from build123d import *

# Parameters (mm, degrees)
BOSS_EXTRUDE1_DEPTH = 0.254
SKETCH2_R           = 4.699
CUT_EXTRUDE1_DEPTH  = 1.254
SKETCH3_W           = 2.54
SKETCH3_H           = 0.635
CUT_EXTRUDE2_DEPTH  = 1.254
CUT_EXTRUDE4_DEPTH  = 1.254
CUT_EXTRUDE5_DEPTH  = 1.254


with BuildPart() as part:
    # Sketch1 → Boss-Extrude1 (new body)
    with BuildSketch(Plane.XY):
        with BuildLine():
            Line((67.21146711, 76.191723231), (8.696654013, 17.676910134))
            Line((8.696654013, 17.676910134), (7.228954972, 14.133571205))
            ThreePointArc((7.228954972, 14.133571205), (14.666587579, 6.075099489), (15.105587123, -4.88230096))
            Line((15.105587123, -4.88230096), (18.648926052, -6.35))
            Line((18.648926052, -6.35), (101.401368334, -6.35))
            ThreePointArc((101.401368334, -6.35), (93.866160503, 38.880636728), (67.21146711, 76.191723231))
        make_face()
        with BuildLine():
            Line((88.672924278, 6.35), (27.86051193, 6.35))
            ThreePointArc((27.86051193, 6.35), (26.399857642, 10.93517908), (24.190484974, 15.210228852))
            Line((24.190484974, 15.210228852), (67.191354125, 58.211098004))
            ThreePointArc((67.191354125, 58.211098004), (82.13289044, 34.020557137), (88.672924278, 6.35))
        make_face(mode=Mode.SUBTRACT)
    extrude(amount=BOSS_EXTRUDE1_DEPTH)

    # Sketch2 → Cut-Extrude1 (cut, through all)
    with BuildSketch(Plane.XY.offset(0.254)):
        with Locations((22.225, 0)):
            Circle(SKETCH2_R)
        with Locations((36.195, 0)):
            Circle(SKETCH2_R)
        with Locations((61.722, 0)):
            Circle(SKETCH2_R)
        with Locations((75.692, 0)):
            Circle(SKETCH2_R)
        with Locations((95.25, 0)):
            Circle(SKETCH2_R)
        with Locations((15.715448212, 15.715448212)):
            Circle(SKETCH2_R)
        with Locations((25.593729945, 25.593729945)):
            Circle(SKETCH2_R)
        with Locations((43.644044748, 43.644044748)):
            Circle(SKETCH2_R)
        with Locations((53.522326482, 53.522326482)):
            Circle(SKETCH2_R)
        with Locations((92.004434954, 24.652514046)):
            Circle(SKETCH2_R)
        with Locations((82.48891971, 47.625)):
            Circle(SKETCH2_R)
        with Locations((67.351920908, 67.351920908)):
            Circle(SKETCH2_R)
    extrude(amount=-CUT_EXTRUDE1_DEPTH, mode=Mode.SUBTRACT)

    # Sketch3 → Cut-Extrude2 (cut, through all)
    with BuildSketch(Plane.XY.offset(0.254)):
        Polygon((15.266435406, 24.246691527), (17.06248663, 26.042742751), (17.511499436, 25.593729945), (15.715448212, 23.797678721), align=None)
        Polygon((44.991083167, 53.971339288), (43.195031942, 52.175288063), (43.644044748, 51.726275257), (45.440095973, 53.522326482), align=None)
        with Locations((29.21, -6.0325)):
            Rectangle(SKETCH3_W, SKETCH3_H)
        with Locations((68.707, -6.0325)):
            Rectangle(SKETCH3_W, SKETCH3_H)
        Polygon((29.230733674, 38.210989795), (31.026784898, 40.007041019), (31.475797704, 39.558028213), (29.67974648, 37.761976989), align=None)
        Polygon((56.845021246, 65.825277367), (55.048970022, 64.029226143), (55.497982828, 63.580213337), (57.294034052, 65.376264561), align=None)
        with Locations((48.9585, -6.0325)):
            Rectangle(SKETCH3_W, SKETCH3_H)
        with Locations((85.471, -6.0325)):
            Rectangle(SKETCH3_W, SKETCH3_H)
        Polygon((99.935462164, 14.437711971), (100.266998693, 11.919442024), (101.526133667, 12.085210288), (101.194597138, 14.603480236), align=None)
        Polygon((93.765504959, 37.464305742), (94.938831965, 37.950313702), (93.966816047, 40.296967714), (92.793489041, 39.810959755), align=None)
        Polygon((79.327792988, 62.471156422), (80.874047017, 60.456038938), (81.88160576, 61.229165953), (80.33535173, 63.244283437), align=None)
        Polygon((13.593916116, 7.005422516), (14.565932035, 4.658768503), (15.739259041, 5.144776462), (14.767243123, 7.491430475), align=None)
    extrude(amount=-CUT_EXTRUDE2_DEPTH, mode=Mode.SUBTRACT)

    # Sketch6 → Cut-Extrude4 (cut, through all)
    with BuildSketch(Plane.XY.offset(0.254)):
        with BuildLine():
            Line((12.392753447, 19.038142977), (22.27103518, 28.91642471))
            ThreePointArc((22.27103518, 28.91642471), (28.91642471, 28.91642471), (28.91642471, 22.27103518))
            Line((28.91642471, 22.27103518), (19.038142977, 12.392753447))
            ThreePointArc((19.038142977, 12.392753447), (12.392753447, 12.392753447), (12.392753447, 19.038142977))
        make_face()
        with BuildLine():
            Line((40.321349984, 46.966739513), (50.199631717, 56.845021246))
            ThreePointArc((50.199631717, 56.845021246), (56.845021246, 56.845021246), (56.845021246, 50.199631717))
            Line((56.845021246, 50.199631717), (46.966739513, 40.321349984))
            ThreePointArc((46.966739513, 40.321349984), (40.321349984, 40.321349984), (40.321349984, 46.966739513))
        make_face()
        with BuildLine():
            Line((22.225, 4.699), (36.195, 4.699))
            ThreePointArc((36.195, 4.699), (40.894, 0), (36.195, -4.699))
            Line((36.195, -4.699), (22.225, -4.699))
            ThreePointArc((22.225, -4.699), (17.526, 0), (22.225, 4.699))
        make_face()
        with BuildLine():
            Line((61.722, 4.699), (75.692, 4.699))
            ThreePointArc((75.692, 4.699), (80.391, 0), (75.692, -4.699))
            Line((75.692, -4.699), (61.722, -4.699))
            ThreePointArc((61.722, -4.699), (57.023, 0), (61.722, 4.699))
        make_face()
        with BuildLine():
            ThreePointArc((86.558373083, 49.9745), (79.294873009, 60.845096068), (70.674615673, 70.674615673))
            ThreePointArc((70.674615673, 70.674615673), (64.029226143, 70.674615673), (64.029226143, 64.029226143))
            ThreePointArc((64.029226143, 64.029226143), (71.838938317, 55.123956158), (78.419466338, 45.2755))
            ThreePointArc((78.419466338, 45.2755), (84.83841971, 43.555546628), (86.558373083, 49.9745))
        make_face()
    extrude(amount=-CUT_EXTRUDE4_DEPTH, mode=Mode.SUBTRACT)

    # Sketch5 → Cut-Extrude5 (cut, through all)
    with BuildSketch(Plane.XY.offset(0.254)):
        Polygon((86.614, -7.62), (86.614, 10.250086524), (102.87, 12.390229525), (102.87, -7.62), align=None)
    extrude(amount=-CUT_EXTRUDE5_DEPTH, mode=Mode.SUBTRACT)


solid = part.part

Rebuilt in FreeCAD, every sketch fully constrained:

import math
import FreeCAD as App
import Part
import Sketcher

V = App.Vector
Q = App.Units.Quantity

doc = App.newDocument("Part")
body = doc.addObject("PartDesign::Body", "Body")

# Sketch on XY plane
sketch1 = body.newObject("Sketcher::SketchObject", "Sketch")
sketch1.AttachmentSupport = (doc.getObject("XY_Plane"), [""])
sketch1.MapMode = "FlatFace"
sketch1.addGeometry(Part.LineSegment(V(67.211467, 76.191723, 0), V(8.696654, 17.67691, 0)), False)
sketch1.addGeometry(Part.LineSegment(V(8.696654, 17.67691, 0), V(7.228955, 14.133571, 0)), False)
sketch1.addGeometry(Part.ArcOfCircle(Part.Circle(V(0, 0, 0), V(0, 0, 1), 15.875), math.radians(-17.911434), math.radians(62.911434)), False)
sketch1.addGeometry(Part.LineSegment(V(15.105587, -4.882301, 0), V(18.648926, -6.35, 0)), False)
sketch1.addGeometry(Part.LineSegment(V(18.648926, -6.35, 0), V(101.401368, -6.35, 0)), False)
sketch1.addGeometry(Part.ArcOfCircle(Part.Circle(V(0, 0, 0), V(0, 0, 1), 101.6), math.radians(-3.583322), math.radians(48.583322)), False)
sketch1.addGeometry(Part.ArcOfCircle(Part.Circle(V(0, 0, 0), V(0, 0, 1), 88.9), math.radians(4.096044), math.radians(40.903956)), False)
sketch1.addGeometry(Part.LineSegment(V(88.672924, 6.35, 0), V(27.860512, 6.35, 0)), False)
sketch1.addGeometry(Part.ArcOfCircle(Part.Circle(V(0, 0, 0), V(0, 0, 1), 28.575), math.radians(12.839588), math.radians(32.160412)), False)
sketch1.addGeometry(Part.LineSegment(V(24.190485, 15.210229, 0), V(67.191354, 58.211098, 0)), False)
sketch1.addConstraint(Sketcher.Constraint("Coincident", 0, 2, 1, 1))
sketch1.addConstraint(Sketcher.Constraint("Coincident", 1, 2, 2, 2))
sketch1.addConstraint(Sketcher.Constraint("Coincident", 2, 1, 3, 1))
sketch1.addConstraint(Sketcher.Constraint("Coincident", 3, 2, 4, 1))
sketch1.addConstraint(Sketcher.Constraint("Coincident", 4, 2, 5, 1))
sketch1.addConstraint(Sketcher.Constraint("Coincident", 5, 2, 0, 1))
sketch1.addConstraint(Sketcher.Constraint("Coincident", 6, 1, 7, 1))
sketch1.addConstraint(Sketcher.Constraint("Coincident", 7, 2, 8, 1))
sketch1.addConstraint(Sketcher.Constraint("Coincident", 8, 2, 9, 1))
sketch1.addConstraint(Sketcher.Constraint("Coincident", 9, 2, 6, 2))
sketch1.addConstraint(Sketcher.Constraint("Horizontal", 4))
sketch1.addConstraint(Sketcher.Constraint("Horizontal", 7))
sketch1.addConstraint(Sketcher.Constraint("Coincident", 2, 3, -1, 1))
sketch1.addConstraint(Sketcher.Constraint("Coincident", 5, 3, -1, 1))
sketch1.addConstraint(Sketcher.Constraint("Coincident", 6, 3, -1, 1))
sketch1.addConstraint(Sketcher.Constraint("Coincident", 8, 3, -1, 1))
sketch1.addConstraint(Sketcher.Constraint("Perpendicular", 1, 3))
sketch1.addConstraint(Sketcher.Constraint("Parallel", 0, 9))
sketch1.addConstraint(Sketcher.Constraint("Equal", 1, 3))
sketch1.addConstraint(Sketcher.Constraint("Radius", 5, Q("4 in")))
sketch1.addConstraint(Sketcher.Constraint("Radius", 6, Q("3.5 in")))
sketch1.addConstraint(Sketcher.Constraint("Angle", 0, Q("-135 deg")))
sketch1.addConstraint(Sketcher.Constraint("Radius", 2, Q("0.625 in")))
sketch1.addConstraint(Sketcher.Constraint("Radius", 8, Q("1.125 in")))
sketch1.addConstraint(Sketcher.Constraint("Angle", 1, Q("-112.5 deg")))
sketch1.addConstraint(Sketcher.Constraint("DistanceY", 4, 2, 6, 1, Q("0.5 in")))
sketch1.addConstraint(Sketcher.Constraint("DistanceY", 3, 2, -1, 1, Q("0.25 in")))
sketch1.addConstraint(Sketcher.Constraint("DistanceY", 2, 1, -1, 1, Q("4.882301 mm")))
sketch1.addConstraint(Sketcher.Constraint("DistanceY", -1, 1, 9, 2, Q("58.211098 mm")))
sketch1.addConstraint(Sketcher.Constraint("DistanceX", 5, 2, 4, 2, Q("34.189901 mm")))
pad1 = body.newObject("PartDesign::Pad", "Pad")
pad1.Profile = sketch1
pad1.Length = Q("0.01 in")

# Sketch on XY plane
sketch2 = body.newObject("Sketcher::SketchObject", "Sketch001")
sketch2.AttachmentSupport = (doc.getObject("XY_Plane"), [""])
sketch2.MapMode = "FlatFace"
sketch2.AttachmentOffset = App.Placement(V(0, 0, 0.01 * 25.4), App.Rotation())
sketch2.addGeometry(Part.Circle(V(22.225, 0, 0), V(0, 0, 1), 4.699), False)
sketch2.addGeometry(Part.Circle(V(36.195, 0, 0), V(0, 0, 1), 4.699), False)
sketch2.addGeometry(Part.Circle(V(61.722, 0, 0), V(0, 0, 1), 4.699), False)
sketch2.addGeometry(Part.Circle(V(75.692, 0, 0), V(0, 0, 1), 4.699), False)
sketch2.addGeometry(Part.Circle(V(95.25, 0, 0), V(0, 0, 1), 4.699), False)
sketch2.addGeometry(Part.Circle(V(15.715448, 15.715448, 0), V(0, 0, 1), 4.699), False)
sketch2.addGeometry(Part.Circle(V(25.59373, 25.59373, 0), V(0, 0, 1), 4.699), False)
sketch2.addGeometry(Part.Circle(V(43.644045, 43.644045, 0), V(0, 0, 1), 4.699), False)
sketch2.addGeometry(Part.Circle(V(53.522326, 53.522326, 0), V(0, 0, 1), 4.699), False)
sketch2.addGeometry(Part.Circle(V(92.004435, 24.652514, 0), V(0, 0, 1), 4.699), False)
sketch2.addGeometry(Part.Circle(V(82.48892, 47.625, 0), V(0, 0, 1), 4.699), False)
sketch2.addGeometry(Part.Circle(V(67.351921, 67.351921, 0), V(0, 0, 1), 4.699), False)
sketch2.addConstraint(Sketcher.Constraint("Equal", 0, 1))
sketch2.addConstraint(Sketcher.Constraint("Equal", 1, 2))
sketch2.addConstraint(Sketcher.Constraint("Equal", 2, 3))
sketch2.addConstraint(Sketcher.Constraint("Equal", 3, 4))
sketch2.addConstraint(Sketcher.Constraint("Equal", 4, 5))
sketch2.addConstraint(Sketcher.Constraint("Equal", 5, 6))
sketch2.addConstraint(Sketcher.Constraint("Equal", 6, 7))
sketch2.addConstraint(Sketcher.Constraint("Equal", 7, 8))
sketch2.addConstraint(Sketcher.Constraint("Equal", 8, 9))
sketch2.addConstraint(Sketcher.Constraint("Equal", 9, 10))
sketch2.addConstraint(Sketcher.Constraint("Equal", 10, 11))
sketch2.addConstraint(Sketcher.Constraint("PointOnObject", 0, 3, -1))
sketch2.addConstraint(Sketcher.Constraint("PointOnObject", 1, 3, -1))
sketch2.addConstraint(Sketcher.Constraint("PointOnObject", 2, 3, -1))
sketch2.addConstraint(Sketcher.Constraint("PointOnObject", 3, 3, -1))
sketch2.addConstraint(Sketcher.Constraint("PointOnObject", 4, 3, -1))
sketch2.addConstraint(Sketcher.Constraint("Diameter", 0, Q("0.37 in")))
sketch2.addConstraint(Sketcher.Constraint("DistanceX", -1, 1, 2, 3, Q("2.43 in")))
sketch2.addConstraint(Sketcher.Constraint("DistanceX", -1, 1, 3, 3, Q("2.98 in")))
sketch2.addConstraint(Sketcher.Constraint("DistanceX", -1, 1, 4, 3, Q("3.75 in")))
sketch2.addConstraint(Sketcher.Constraint("DistanceX", 0, 3, 1, 3, Q("0.55 in")))
sketch2.addConstraint(Sketcher.Constraint("DistanceX", -1, 1, 0, 3, Q("0.875 in")))
sketch2.addConstraint(Sketcher.Constraint("DistanceY", -1, 1, 10, 3, Q("1.875 in")))
sketch2.addConstraint(Sketcher.Constraint("DistanceX", 11, 3, 10, 3, Q("15.136999 mm")))
sketch2.addConstraint(Sketcher.Constraint("DistanceX", -1, 1, 5, 3, Q("15.715448 mm")))
sketch2.addConstraint(Sketcher.Constraint("DistanceY", -1, 1, 5, 3, Q("15.715448 mm")))
sketch2.addConstraint(Sketcher.Constraint("DistanceX", -1, 1, 6, 3, Q("25.59373 mm")))
sketch2.addConstraint(Sketcher.Constraint("DistanceY", -1, 1, 6, 3, Q("25.59373 mm")))
sketch2.addConstraint(Sketcher.Constraint("DistanceX", -1, 1, 10, 3, Q("82.48892 mm")))
sketch2.addConstraint(Sketcher.Constraint("DistanceY", -1, 1, 11, 3, Q("67.351921 mm")))
sketch2.addConstraint(Sketcher.Constraint("DistanceX", 7, 3, 8, 3, Q("9.878282 mm")))
sketch2.addConstraint(Sketcher.Constraint("DistanceY", 7, 3, 8, 3, Q("9.878282 mm")))
sketch2.addConstraint(Sketcher.Constraint("DistanceX", 5, 3, 8, 3, Q("37.806878 mm")))
sketch2.addConstraint(Sketcher.Constraint("DistanceY", 5, 3, 8, 3, Q("37.806878 mm")))
sketch2.addConstraint(Sketcher.Constraint("DistanceX", 8, 3, 9, 3, Q("38.482108 mm")))
sketch2.addConstraint(Sketcher.Constraint("DistanceY", 9, 3, 7, 3, Q("18.991531 mm")))
pocket1 = body.newObject("PartDesign::Pocket", "Pocket")
pocket1.Profile = sketch2
pocket1.Type = "ThroughAll"

# Sketch on XY plane
sketch3 = body.newObject("Sketcher::SketchObject", "Sketch002")
sketch3.AttachmentSupport = (doc.getObject("XY_Plane"), [""])
sketch3.MapMode = "FlatFace"
sketch3.AttachmentOffset = App.Placement(V(0, 0, 0.01 * 25.4), App.Rotation())
sketch3.addGeometry(Part.LineSegment(V(17.062487, 26.042743, 0), V(15.266435, 24.246692, 0)), False)
sketch3.addGeometry(Part.LineSegment(V(15.266435, 24.246692, 0), V(15.715448, 23.797679, 0)), False)
sketch3.addGeometry(Part.LineSegment(V(15.715448, 23.797679, 0), V(17.511499, 25.59373, 0)), False)
sketch3.addGeometry(Part.LineSegment(V(17.511499, 25.59373, 0), V(17.062487, 26.042743, 0)), False)
sketch3.addGeometry(Part.LineSegment(V(44.991083, 53.971339, 0), V(43.195032, 52.175288, 0)), False)
sketch3.addGeometry(Part.LineSegment(V(43.195032, 52.175288, 0), V(43.644045, 51.726275, 0)), False)
sketch3.addGeometry(Part.LineSegment(V(43.644045, 51.726275, 0), V(45.440096, 53.522326, 0)), False)
sketch3.addGeometry(Part.LineSegment(V(45.440096, 53.522326, 0), V(44.991083, 53.971339, 0)), False)
sketch3.addGeometry(Part.LineSegment(V(27.94, -5.715, 0), V(27.94, -6.35, 0)), False)
sketch3.addGeometry(Part.LineSegment(V(27.94, -6.35, 0), V(30.48, -6.35, 0)), False)
sketch3.addGeometry(Part.LineSegment(V(30.48, -6.35, 0), V(30.48, -5.715, 0)), False)
sketch3.addGeometry(Part.LineSegment(V(30.48, -5.715, 0), V(27.94, -5.715, 0)), False)
sketch3.addGeometry(Part.LineSegment(V(67.437, -5.715, 0), V(67.437, -6.35, 0)), False)
sketch3.addGeometry(Part.LineSegment(V(67.437, -6.35, 0), V(69.977, -6.35, 0)), False)
sketch3.addGeometry(Part.LineSegment(V(69.977, -6.35, 0), V(69.977, -5.715, 0)), False)
sketch3.addGeometry(Part.LineSegment(V(69.977, -5.715, 0), V(67.437, -5.715, 0)), False)
sketch3.addGeometry(Part.LineSegment(V(31.026785, 40.007041, 0), V(29.230734, 38.21099, 0)), False)
sketch3.addGeometry(Part.LineSegment(V(29.230734, 38.21099, 0), V(29.679746, 37.761977, 0)), False)
sketch3.addGeometry(Part.LineSegment(V(29.679746, 37.761977, 0), V(31.475798, 39.558028, 0)), False)
sketch3.addGeometry(Part.LineSegment(V(31.475798, 39.558028, 0), V(31.026785, 40.007041, 0)), False)
sketch3.addGeometry(Part.LineSegment(V(56.845021, 65.825277, 0), V(55.04897, 64.029226, 0)), False)
sketch3.addGeometry(Part.LineSegment(V(55.04897, 64.029226, 0), V(55.497983, 63.580213, 0)), False)
sketch3.addGeometry(Part.LineSegment(V(55.497983, 63.580213, 0), V(57.294034, 65.376265, 0)), False)
sketch3.addGeometry(Part.LineSegment(V(57.294034, 65.376265, 0), V(56.845021, 65.825277, 0)), False)
sketch3.addGeometry(Part.LineSegment(V(47.6885, -5.715, 0), V(47.6885, -6.35, 0)), False)
sketch3.addGeometry(Part.LineSegment(V(47.6885, -6.35, 0), V(50.2285, -6.35, 0)), False)
sketch3.addGeometry(Part.LineSegment(V(50.2285, -6.35, 0), V(50.2285, -5.715, 0)), False)
sketch3.addGeometry(Part.LineSegment(V(50.2285, -5.715, 0), V(47.6885, -5.715, 0)), False)
sketch3.addGeometry(Part.LineSegment(V(84.201, -5.715, 0), V(84.201, -6.35, 0)), False)
sketch3.addGeometry(Part.LineSegment(V(84.201, -6.35, 0), V(86.741, -6.35, 0)), False)
sketch3.addGeometry(Part.LineSegment(V(86.741, -6.35, 0), V(86.741, -5.715, 0)), False)
sketch3.addGeometry(Part.LineSegment(V(86.741, -5.715, 0), V(84.201, -5.715, 0)), False)
sketch3.addGeometry(Part.LineSegment(V(99.935462, 14.437712, 0), V(100.266999, 11.919442, 0)), False)
sketch3.addGeometry(Part.LineSegment(V(100.266999, 11.919442, 0), V(101.526134, 12.08521, 0)), False)
sketch3.addGeometry(Part.LineSegment(V(101.526134, 12.08521, 0), V(101.194597, 14.60348, 0)), False)
sketch3.addGeometry(Part.LineSegment(V(101.194597, 14.60348, 0), V(99.935462, 14.437712, 0)), False)
sketch3.addGeometry(Part.LineSegment(V(93.765505, 37.464306, 0), V(94.938832, 37.950314, 0)), False)
sketch3.addGeometry(Part.LineSegment(V(94.938832, 37.950314, 0), V(93.966816, 40.296968, 0)), False)
sketch3.addGeometry(Part.LineSegment(V(93.966816, 40.296968, 0), V(92.793489, 39.81096, 0)), False)
sketch3.addGeometry(Part.LineSegment(V(92.793489, 39.81096, 0), V(93.765505, 37.464306, 0)), False)
sketch3.addGeometry(Part.LineSegment(V(79.327793, 62.471156, 0), V(80.874047, 60.456039, 0)), False)
sketch3.addGeometry(Part.LineSegment(V(80.874047, 60.456039, 0), V(81.881606, 61.229166, 0)), False)
sketch3.addGeometry(Part.LineSegment(V(81.881606, 61.229166, 0), V(80.335352, 63.244283, 0)), False)
sketch3.addGeometry(Part.LineSegment(V(80.335352, 63.244283, 0), V(79.327793, 62.471156, 0)), False)
sketch3.addGeometry(Part.LineSegment(V(13.593916, 7.005423, 0), V(14.565932, 4.658769, 0)), False)
sketch3.addGeometry(Part.LineSegment(V(14.565932, 4.658769, 0), V(15.739259, 5.144776, 0)), False)
sketch3.addGeometry(Part.LineSegment(V(15.739259, 5.144776, 0), V(14.767243, 7.49143, 0)), False)
sketch3.addGeometry(Part.LineSegment(V(14.767243, 7.49143, 0), V(13.593916, 7.005423, 0)), False)
sketch3.addConstraint(Sketcher.Constraint("Coincident", 0, 2, 1, 1))
sketch3.addConstraint(Sketcher.Constraint("Coincident", 1, 2, 2, 1))
sketch3.addConstraint(Sketcher.Constraint("Coincident", 2, 2, 3, 1))
sketch3.addConstraint(Sketcher.Constraint("Coincident", 3, 2, 0, 1))
sketch3.addConstraint(Sketcher.Constraint("Coincident", 4, 2, 5, 1))
sketch3.addConstraint(Sketcher.Constraint("Coincident", 5, 2, 6, 1))
sketch3.addConstraint(Sketcher.Constraint("Coincident", 6, 2, 7, 1))
sketch3.addConstraint(Sketcher.Constraint("Coincident", 7, 2, 4, 1))
sketch3.addConstraint(Sketcher.Constraint("Coincident", 8, 2, 9, 1))
sketch3.addConstraint(Sketcher.Constraint("Coincident", 9, 2, 10, 1))
sketch3.addConstraint(Sketcher.Constraint("Coincident", 10, 2, 11, 1))
sketch3.addConstraint(Sketcher.Constraint("Coincident", 11, 2, 8, 1))
sketch3.addConstraint(Sketcher.Constraint("Coincident", 12, 2, 13, 1))
sketch3.addConstraint(Sketcher.Constraint("Coincident", 13, 2, 14, 1))
sketch3.addConstraint(Sketcher.Constraint("Coincident", 14, 2, 15, 1))
sketch3.addConstraint(Sketcher.Constraint("Coincident", 15, 2, 12, 1))
sketch3.addConstraint(Sketcher.Constraint("Coincident", 16, 2, 17, 1))
sketch3.addConstraint(Sketcher.Constraint("Coincident", 17, 2, 18, 1))
sketch3.addConstraint(Sketcher.Constraint("Coincident", 18, 2, 19, 1))
sketch3.addConstraint(Sketcher.Constraint("Coincident", 19, 2, 16, 1))
sketch3.addConstraint(Sketcher.Constraint("Coincident", 20, 2, 21, 1))
sketch3.addConstraint(Sketcher.Constraint("Coincident", 21, 2, 22, 1))
sketch3.addConstraint(Sketcher.Constraint("Coincident", 22, 2, 23, 1))
sketch3.addConstraint(Sketcher.Constraint("Coincident", 23, 2, 20, 1))
sketch3.addConstraint(Sketcher.Constraint("Coincident", 24, 2, 25, 1))
sketch3.addConstraint(Sketcher.Constraint("Coincident", 25, 2, 26, 1))
sketch3.addConstraint(Sketcher.Constraint("Coincident", 26, 2, 27, 1))
sketch3.addConstraint(Sketcher.Constraint("Coincident", 27, 2, 24, 1))
sketch3.addConstraint(Sketcher.Constraint("Coincident", 28, 2, 29, 1))
sketch3.addConstraint(Sketcher.Constraint("Coincident", 29, 2, 30, 1))
sketch3.addConstraint(Sketcher.Constraint("Coincident", 30, 2, 31, 1))
sketch3.addConstraint(Sketcher.Constraint("Coincident", 31, 2, 28, 1))
sketch3.addConstraint(Sketcher.Constraint("Coincident", 32, 2, 33, 1))
sketch3.addConstraint(Sketcher.Constraint("Coincident", 33, 2, 34, 1))
sketch3.addConstraint(Sketcher.Constraint("Coincident", 34, 2, 35, 1))
sketch3.addConstraint(Sketcher.Constraint("Coincident", 35, 2, 32, 1))
sketch3.addConstraint(Sketcher.Constraint("Coincident", 36, 2, 37, 1))
sketch3.addConstraint(Sketcher.Constraint("Coincident", 37, 2, 38, 1))
sketch3.addConstraint(Sketcher.Constraint("Coincident", 38, 2, 39, 1))
sketch3.addConstraint(Sketcher.Constraint("Coincident", 39, 2, 36, 1))
sketch3.addConstraint(Sketcher.Constraint("Coincident", 40, 2, 41, 1))
sketch3.addConstraint(Sketcher.Constraint("Coincident", 41, 2, 42, 1))
sketch3.addConstraint(Sketcher.Constraint("Coincident", 42, 2, 43, 1))
sketch3.addConstraint(Sketcher.Constraint("Coincident", 43, 2, 40, 1))
sketch3.addConstraint(Sketcher.Constraint("Coincident", 44, 2, 45, 1))
sketch3.addConstraint(Sketcher.Constraint("Coincident", 45, 2, 46, 1))
sketch3.addConstraint(Sketcher.Constraint("Coincident", 46, 2, 47, 1))
sketch3.addConstraint(Sketcher.Constraint("Coincident", 47, 2, 44, 1))
sketch3.addConstraint(Sketcher.Constraint("Vertical", 8))
sketch3.addConstraint(Sketcher.Constraint("Horizontal", 9))
sketch3.addConstraint(Sketcher.Constraint("Vertical", 10))
sketch3.addConstraint(Sketcher.Constraint("Horizontal", 11))
sketch3.addConstraint(Sketcher.Constraint("Vertical", 12))
sketch3.addConstraint(Sketcher.Constraint("Horizontal", 13))
sketch3.addConstraint(Sketcher.Constraint("Vertical", 14))
sketch3.addConstraint(Sketcher.Constraint("Horizontal", 15))
sketch3.addConstraint(Sketcher.Constraint("Vertical", 24))
sketch3.addConstraint(Sketcher.Constraint("Horizontal", 25))
sketch3.addConstraint(Sketcher.Constraint("Vertical", 26))
sketch3.addConstraint(Sketcher.Constraint("Horizontal", 27))
sketch3.addConstraint(Sketcher.Constraint("Vertical", 28))
sketch3.addConstraint(Sketcher.Constraint("Horizontal", 29))
sketch3.addConstraint(Sketcher.Constraint("Vertical", 30))
sketch3.addConstraint(Sketcher.Constraint("Horizontal", 31))
sketch3.addConstraint(Sketcher.Constraint("Perpendicular", 0, 1))
sketch3.addConstraint(Sketcher.Constraint("Perpendicular", 1, 2))
sketch3.addConstraint(Sketcher.Constraint("Perpendicular", 2, 3))
sketch3.addConstraint(Sketcher.Constraint("Perpendicular", 3, 4))
sketch3.addConstraint(Sketcher.Constraint("Perpendicular", 4, 5))
sketch3.addConstraint(Sketcher.Constraint("Perpendicular", 5, 6))
sketch3.addConstraint(Sketcher.Constraint("Perpendicular", 6, 7))
sketch3.addConstraint(Sketcher.Constraint("Perpendicular", 7, 16))
sketch3.addConstraint(Sketcher.Constraint("Perpendicular", 16, 17))
sketch3.addConstraint(Sketcher.Constraint("Perpendicular", 17, 18))
sketch3.addConstraint(Sketcher.Constraint("Perpendicular", 18, 19))
sketch3.addConstraint(Sketcher.Constraint("Perpendicular", 19, 20))
sketch3.addConstraint(Sketcher.Constraint("Perpendicular", 20, 21))
sketch3.addConstraint(Sketcher.Constraint("Perpendicular", 21, 22))
sketch3.addConstraint(Sketcher.Constraint("Perpendicular", 22, 23))
sketch3.addConstraint(Sketcher.Constraint("Perpendicular", 32, 33))
sketch3.addConstraint(Sketcher.Constraint("Perpendicular", 33, 34))
sketch3.addConstraint(Sketcher.Constraint("Perpendicular", 34, 35))
sketch3.addConstraint(Sketcher.Constraint("Perpendicular", 36, 37))
sketch3.addConstraint(Sketcher.Constraint("Perpendicular", 37, 38))
sketch3.addConstraint(Sketcher.Constraint("Perpendicular", 38, 39))
sketch3.addConstraint(Sketcher.Constraint("Perpendicular", 40, 41))
sketch3.addConstraint(Sketcher.Constraint("Perpendicular", 41, 42))
sketch3.addConstraint(Sketcher.Constraint("Perpendicular", 42, 43))
sketch3.addConstraint(Sketcher.Constraint("Parallel", 39, 44))
sketch3.addConstraint(Sketcher.Constraint("Perpendicular", 44, 45))
sketch3.addConstraint(Sketcher.Constraint("Perpendicular", 45, 46))
sketch3.addConstraint(Sketcher.Constraint("Perpendicular", 46, 47))
sketch3.addConstraint(Sketcher.Constraint("Horizontal", 9, 2, 12, 2))
sketch3.addConstraint(Sketcher.Constraint("Horizontal", 11, 2, 14, 2))
sketch3.addConstraint(Sketcher.Constraint("Horizontal", 13, 2, 24, 2))
sketch3.addConstraint(Sketcher.Constraint("Horizontal", 15, 2, 26, 2))
sketch3.addConstraint(Sketcher.Constraint("Horizontal", 25, 2, 28, 2))
sketch3.addConstraint(Sketcher.Constraint("Horizontal", 27, 2, 30, 2))
sketch3.addConstraint(Sketcher.Constraint("Equal", 11, 13))
sketch3.addConstraint(Sketcher.Constraint("Equal", 15, 25))
sketch3.addConstraint(Sketcher.Constraint("Equal", 27, 29))
sketch3.addConstraint(Sketcher.Constraint("Equal", 2, 4))
sketch3.addConstraint(Sketcher.Constraint("Equal", 3, 5))
sketch3.addConstraint(Sketcher.Constraint("Equal", 6, 16))
sketch3.addConstraint(Sketcher.Constraint("Equal", 7, 17))
sketch3.addConstraint(Sketcher.Constraint("Equal", 18, 20))
sketch3.addConstraint(Sketcher.Constraint("Equal", 19, 21))
sketch3.addConstraint(Sketcher.Constraint("Equal", 22, 32))
sketch3.addConstraint(Sketcher.Constraint("Equal", 35, 36))
sketch3.addConstraint(Sketcher.Constraint("Equal", 34, 37))
sketch3.addConstraint(Sketcher.Constraint("Equal", 39, 40))
sketch3.addConstraint(Sketcher.Constraint("Equal", 38, 41))
sketch3.addConstraint(Sketcher.Constraint("Equal", 42, 44))
sketch3.addConstraint(Sketcher.Constraint("Equal", 43, 45))
sketch3.addConstraint(Sketcher.Constraint("DistanceX", 9, 1, 9, 2, Q("0.1 in")))
sketch3.addConstraint(Sketcher.Constraint("Angle", 0, Q("-135 deg")))
sketch3.addConstraint(Sketcher.Constraint("Distance", 0, Q("0.1 in")))
sketch3.addConstraint(Sketcher.Constraint("DistanceX", -1, 1, 8, 2, Q("1.1 in")))
sketch3.addConstraint(Sketcher.Constraint("Angle", 32, Q("-82.5 deg")))
sketch3.addConstraint(Sketcher.Constraint("Angle", 36, Q("22.5 deg")))
sketch3.addConstraint(Sketcher.Constraint("Angle", 40, Q("-52.5 deg")))
sketch3.addConstraint(Sketcher.Constraint("Distance", 33, Q("0.05 in")))
sketch3.addConstraint(Sketcher.Constraint("DistanceY", 8, 2, 8, 1, Q("0.025 in")))
sketch3.addConstraint(Sketcher.Constraint("DistanceY", 8, 2, -1, 1, Q("0.25 in")))
sketch3.addConstraint(Sketcher.Constraint("DistanceX", 13, 2, 28, 2, Q("0.56 in")))
sketch3.addConstraint(Sketcher.Constraint("Distance", 1, Q("0.025 in")))
sketch3.addConstraint(Sketcher.Constraint("DistanceX", -1, 1, 12, 2, Q("2.655 in")))
sketch3.addConstraint(Sketcher.Constraint("DistanceX", -1, 1, 24, 2, Q("1.8775 in")))
sketch3.addConstraint(Sketcher.Constraint("DistanceX", -1, 1, 2, 2, Q("17.511499 mm")))
sketch3.addConstraint(Sketcher.Constraint("DistanceX", -1, 1, 32, 2, Q("100.266999 mm")))
sketch3.addConstraint(Sketcher.Constraint("DistanceX", 16, 2, 4, 2, Q("13.964298 mm")))
sketch3.addConstraint(Sketcher.Constraint("DistanceY", 16, 2, 4, 2, Q("13.964298 mm")))
sketch3.addConstraint(Sketcher.Constraint("DistanceX", 0, 2, 16, 2, Q("13.964298 mm")))
sketch3.addConstraint(Sketcher.Constraint("DistanceY", 0, 2, 16, 2, Q("13.964298 mm")))
sketch3.addConstraint(Sketcher.Constraint("DistanceY", 6, 2, 20, 2, Q("10.5069 mm")))
sketch3.addConstraint(Sketcher.Constraint("DistanceX", 7, 2, 21, 2, Q("10.5069 mm")))
sketch3.addConstraint(Sketcher.Constraint("DistanceY", 35, 2, 36, 2, Q("23.512602 mm")))
sketch3.addConstraint(Sketcher.Constraint("DistanceX", 36, 2, 33, 2, Q("6.587302 mm")))
sketch3.addConstraint(Sketcher.Constraint("DistanceY", 37, 2, 41, 2, Q("20.932198 mm")))
sketch3.addConstraint(Sketcher.Constraint("DistanceY", 41, 2, 22, 2, Q("4.147099 mm")))
sketch3.addConstraint(Sketcher.Constraint("DistanceY", 46, 2, 2, 2, Q("18.102299 mm")))
sketch3.addConstraint(Sketcher.Constraint("DistanceY", -1, 1, 0, 2, Q("24.246692 mm")))
sketch3.addConstraint(Sketcher.Constraint("DistanceX", -1, 1, 42, 2, Q("80.335352 mm")))
sketch3.addConstraint(Sketcher.Constraint("DistanceX", -1, 1, 45, 2, Q("15.739259 mm")))
pocket2 = body.newObject("PartDesign::Pocket", "Pocket001")
pocket2.Profile = sketch3
pocket2.Type = "ThroughAll"

# Sketch on XY plane
sketch4 = body.newObject("Sketcher::SketchObject", "Sketch003")
sketch4.AttachmentSupport = (doc.getObject("XY_Plane"), [""])
sketch4.MapMode = "FlatFace"
sketch4.AttachmentOffset = App.Placement(V(0, 0, 0.01 * 25.4), App.Rotation())
sketch4.addGeometry(Part.LineSegment(V(22.271035, 28.916425, 0), V(12.392753, 19.038143, 0)), False)
sketch4.addGeometry(Part.ArcOfCircle(Part.Circle(V(15.715448, 15.715448, 0), V(0, 0, 1), 4.699), math.radians(135), math.radians(315)), False)
sketch4.addGeometry(Part.LineSegment(V(19.038143, 12.392753, 0), V(28.916425, 22.271035, 0)), False)
sketch4.addGeometry(Part.ArcOfCircle(Part.Circle(V(25.59373, 25.59373, 0), V(0, 0, 1), 4.699), math.radians(-45), math.radians(135)), False)
sketch4.addGeometry(Part.LineSegment(V(50.199632, 56.845021, 0), V(40.32135, 46.96674, 0)), False)
sketch4.addGeometry(Part.ArcOfCircle(Part.Circle(V(43.644045, 43.644045, 0), V(0, 0, 1), 4.699), math.radians(135), math.radians(315)), False)
sketch4.addGeometry(Part.LineSegment(V(46.96674, 40.32135, 0), V(56.845021, 50.199632, 0)), False)
sketch4.addGeometry(Part.ArcOfCircle(Part.Circle(V(53.522326, 53.522326, 0), V(0, 0, 1), 4.699), math.radians(-45), math.radians(135)), False)
sketch4.addGeometry(Part.LineSegment(V(36.195, 4.699, 0), V(22.225, 4.699, 0)), False)
sketch4.addGeometry(Part.ArcOfCircle(Part.Circle(V(22.225, 0, 0), V(0, 0, 1), 4.699), math.radians(90), math.radians(270)), False)
sketch4.addGeometry(Part.LineSegment(V(22.225, -4.699, 0), V(36.195, -4.699, 0)), False)
sketch4.addGeometry(Part.ArcOfCircle(Part.Circle(V(36.195, 0, 0), V(0, 0, 1), 4.699), math.radians(-90), math.radians(90)), False)
sketch4.addGeometry(Part.LineSegment(V(75.692, 4.699, 0), V(61.722, 4.699, 0)), False)
sketch4.addGeometry(Part.ArcOfCircle(Part.Circle(V(61.722, 0, 0), V(0, 0, 1), 4.699), math.radians(90), math.radians(270)), False)
sketch4.addGeometry(Part.LineSegment(V(61.722, -4.699, 0), V(75.692, -4.699, 0)), False)
sketch4.addGeometry(Part.ArcOfCircle(Part.Circle(V(75.692, 0, 0), V(0, 0, 1), 4.699), math.radians(-90), math.radians(90)), False)
sketch4.addGeometry(Part.ArcOfCircle(Part.Circle(V(0, 0, 0), V(0, 0, 1), 99.949), math.radians(30), math.radians(45)), False)
sketch4.addGeometry(Part.ArcOfCircle(Part.Circle(V(67.351921, 67.351921, 0), V(0, 0, 1), 4.699), math.radians(45), math.radians(225)), False)
sketch4.addGeometry(Part.ArcOfCircle(Part.Circle(V(0, 0, 0), V(0, 0, 1), 90.551), math.radians(30), math.radians(45)), False)
sketch4.addGeometry(Part.ArcOfCircle(Part.Circle(V(82.48892, 47.625, 0), V(0, 0, 1), 4.699), math.radians(-150), math.radians(30)), False)
sketch4.addConstraint(Sketcher.Constraint("Tangent", 0, 2, 1, 1))
sketch4.addConstraint(Sketcher.Constraint("Tangent", 1, 2, 2, 1))
sketch4.addConstraint(Sketcher.Constraint("Tangent", 2, 2, 3, 1))
sketch4.addConstraint(Sketcher.Constraint("Tangent", 3, 2, 0, 1))
sketch4.addConstraint(Sketcher.Constraint("Tangent", 4, 2, 5, 1))
sketch4.addConstraint(Sketcher.Constraint("Tangent", 5, 2, 6, 1))
sketch4.addConstraint(Sketcher.Constraint("Tangent", 6, 2, 7, 1))
sketch4.addConstraint(Sketcher.Constraint("Tangent", 7, 2, 4, 1))
sketch4.addConstraint(Sketcher.Constraint("Tangent", 8, 2, 9, 1))
sketch4.addConstraint(Sketcher.Constraint("Tangent", 9, 2, 10, 1))
sketch4.addConstraint(Sketcher.Constraint("Tangent", 10, 2, 11, 1))
sketch4.addConstraint(Sketcher.Constraint("Tangent", 11, 2, 8, 1))
sketch4.addConstraint(Sketcher.Constraint("Tangent", 12, 2, 13, 1))
sketch4.addConstraint(Sketcher.Constraint("Tangent", 13, 2, 14, 1))
sketch4.addConstraint(Sketcher.Constraint("Tangent", 14, 2, 15, 1))
sketch4.addConstraint(Sketcher.Constraint("Tangent", 15, 2, 12, 1))
sketch4.addConstraint(Sketcher.Constraint("Tangent", 16, 2, 17, 1))
sketch4.addConstraint(Sketcher.Constraint("Tangent", 17, 2, 18, 2))
sketch4.addConstraint(Sketcher.Constraint("Tangent", 18, 1, 19, 1))
sketch4.addConstraint(Sketcher.Constraint("Tangent", 19, 2, 16, 1))
sketch4.addConstraint(Sketcher.Constraint("Horizontal", 8))
sketch4.addConstraint(Sketcher.Constraint("Horizontal", 10))
sketch4.addConstraint(Sketcher.Constraint("Horizontal", 12))
sketch4.addConstraint(Sketcher.Constraint("Horizontal", 14))
sketch4.addConstraint(Sketcher.Constraint("Coincident", 16, 3, -1, 1))
sketch4.addConstraint(Sketcher.Constraint("Coincident", 18, 3, -1, 1))
sketch4.addConstraint(Sketcher.Constraint("Equal", 1, 3))
sketch4.addConstraint(Sketcher.Constraint("Equal", 3, 5))
sketch4.addConstraint(Sketcher.Constraint("Equal", 5, 7))
sketch4.addConstraint(Sketcher.Constraint("Equal", 7, 9))
sketch4.addConstraint(Sketcher.Constraint("Equal", 11, 13))
sketch4.addConstraint(Sketcher.Constraint("Equal", 15, 17))
sketch4.addConstraint(Sketcher.Constraint("PointOnObject", 9, 3, -1))
sketch4.addConstraint(Sketcher.Constraint("PointOnObject", 13, 3, -1))
sketch4.addConstraint(Sketcher.Constraint("Parallel", 2, 4))
sketch4.addConstraint(Sketcher.Constraint("Equal", 10, 12))
sketch4.addConstraint(Sketcher.Constraint("Equal", 2, 4))
sketch4.addConstraint(Sketcher.Constraint("Angle", 0, Q("-135 deg")))
sketch4.addConstraint(Sketcher.Constraint("Radius", 1, Q("0.185 in")))
sketch4.addConstraint(Sketcher.Constraint("Radius", 16, Q("3.935 in")))
sketch4.addConstraint(Sketcher.Constraint("DistanceX", 8, 2, 8, 1, Q("0.55 in")))
sketch4.addConstraint(Sketcher.Constraint("Distance", 0, Q("0.55 in")))
sketch4.addConstraint(Sketcher.Constraint("DistanceX", -1, 1, 13, 3, Q("2.43 in")))
sketch4.addConstraint(Sketcher.Constraint("DistanceX", -1, 1, 9, 3, Q("0.875 in")))
sketch4.addConstraint(Sketcher.Constraint("DistanceY", -1, 1, 19, 3, Q("1.875 in")))
sketch4.addConstraint(Sketcher.Constraint("DistanceX", 17, 3, 19, 3, Q("15.136999 mm")))
sketch4.addConstraint(Sketcher.Constraint("DistanceX", 6, 2, 17, 3, Q("10.5069 mm")))
sketch4.addConstraint(Sketcher.Constraint("DistanceY", 7, 3, 17, 2, Q("10.5069 mm")))
sketch4.addConstraint(Sketcher.Constraint("DistanceX", -1, 1, 1, 3, Q("15.715448 mm")))
sketch4.addConstraint(Sketcher.Constraint("DistanceY", -1, 1, 1, 3, Q("15.715448 mm")))
pocket3 = body.newObject("PartDesign::Pocket", "Pocket002")
pocket3.Profile = sketch4
pocket3.Type = "ThroughAll"

# Sketch on XY plane
sketch5 = body.newObject("Sketcher::SketchObject", "Sketch004")
sketch5.AttachmentSupport = (doc.getObject("XY_Plane"), [""])
sketch5.MapMode = "FlatFace"
sketch5.AttachmentOffset = App.Placement(V(0, 0, 0.01 * 25.4), App.Rotation())
sketch5.addGeometry(Part.LineSegment(V(86.614, 10.250087, 0), V(86.614, -7.62, 0)), False)
sketch5.addGeometry(Part.LineSegment(V(86.614, -7.62, 0), V(102.87, -7.62, 0)), False)
sketch5.addGeometry(Part.LineSegment(V(102.87, -7.62, 0), V(102.87, 12.39023, 0)), False)
sketch5.addGeometry(Part.LineSegment(V(102.87, 12.39023, 0), V(86.614, 10.250087, 0)), False)
sketch5.addConstraint(Sketcher.Constraint("Coincident", 0, 2, 1, 1))
sketch5.addConstraint(Sketcher.Constraint("Coincident", 1, 2, 2, 1))
sketch5.addConstraint(Sketcher.Constraint("Coincident", 2, 2, 3, 1))
sketch5.addConstraint(Sketcher.Constraint("Coincident", 3, 2, 0, 1))
sketch5.addConstraint(Sketcher.Constraint("Vertical", 0))
sketch5.addConstraint(Sketcher.Constraint("Horizontal", 1))
sketch5.addConstraint(Sketcher.Constraint("Vertical", 2))
sketch5.addConstraint(Sketcher.Constraint("DistanceX", 1, 1, 1, 2, Q("0.64 in")))
sketch5.addConstraint(Sketcher.Constraint("DistanceY", 0, 2, -1, 1, Q("0.3 in")))
sketch5.addConstraint(Sketcher.Constraint("Angle", 3, Q("-172.5 deg")))
sketch5.addConstraint(Sketcher.Constraint("DistanceX", -1, 1, 0, 2, Q("3.41 in")))
sketch5.addConstraint(Sketcher.Constraint("DistanceY", 2, 1, 2, 2, Q("20.01023 mm")))
pocket4 = body.newObject("PartDesign::Pocket", "Pocket003")
pocket4.Profile = sketch5
pocket4.Type = "ThroughAll"

doc.recompute()
